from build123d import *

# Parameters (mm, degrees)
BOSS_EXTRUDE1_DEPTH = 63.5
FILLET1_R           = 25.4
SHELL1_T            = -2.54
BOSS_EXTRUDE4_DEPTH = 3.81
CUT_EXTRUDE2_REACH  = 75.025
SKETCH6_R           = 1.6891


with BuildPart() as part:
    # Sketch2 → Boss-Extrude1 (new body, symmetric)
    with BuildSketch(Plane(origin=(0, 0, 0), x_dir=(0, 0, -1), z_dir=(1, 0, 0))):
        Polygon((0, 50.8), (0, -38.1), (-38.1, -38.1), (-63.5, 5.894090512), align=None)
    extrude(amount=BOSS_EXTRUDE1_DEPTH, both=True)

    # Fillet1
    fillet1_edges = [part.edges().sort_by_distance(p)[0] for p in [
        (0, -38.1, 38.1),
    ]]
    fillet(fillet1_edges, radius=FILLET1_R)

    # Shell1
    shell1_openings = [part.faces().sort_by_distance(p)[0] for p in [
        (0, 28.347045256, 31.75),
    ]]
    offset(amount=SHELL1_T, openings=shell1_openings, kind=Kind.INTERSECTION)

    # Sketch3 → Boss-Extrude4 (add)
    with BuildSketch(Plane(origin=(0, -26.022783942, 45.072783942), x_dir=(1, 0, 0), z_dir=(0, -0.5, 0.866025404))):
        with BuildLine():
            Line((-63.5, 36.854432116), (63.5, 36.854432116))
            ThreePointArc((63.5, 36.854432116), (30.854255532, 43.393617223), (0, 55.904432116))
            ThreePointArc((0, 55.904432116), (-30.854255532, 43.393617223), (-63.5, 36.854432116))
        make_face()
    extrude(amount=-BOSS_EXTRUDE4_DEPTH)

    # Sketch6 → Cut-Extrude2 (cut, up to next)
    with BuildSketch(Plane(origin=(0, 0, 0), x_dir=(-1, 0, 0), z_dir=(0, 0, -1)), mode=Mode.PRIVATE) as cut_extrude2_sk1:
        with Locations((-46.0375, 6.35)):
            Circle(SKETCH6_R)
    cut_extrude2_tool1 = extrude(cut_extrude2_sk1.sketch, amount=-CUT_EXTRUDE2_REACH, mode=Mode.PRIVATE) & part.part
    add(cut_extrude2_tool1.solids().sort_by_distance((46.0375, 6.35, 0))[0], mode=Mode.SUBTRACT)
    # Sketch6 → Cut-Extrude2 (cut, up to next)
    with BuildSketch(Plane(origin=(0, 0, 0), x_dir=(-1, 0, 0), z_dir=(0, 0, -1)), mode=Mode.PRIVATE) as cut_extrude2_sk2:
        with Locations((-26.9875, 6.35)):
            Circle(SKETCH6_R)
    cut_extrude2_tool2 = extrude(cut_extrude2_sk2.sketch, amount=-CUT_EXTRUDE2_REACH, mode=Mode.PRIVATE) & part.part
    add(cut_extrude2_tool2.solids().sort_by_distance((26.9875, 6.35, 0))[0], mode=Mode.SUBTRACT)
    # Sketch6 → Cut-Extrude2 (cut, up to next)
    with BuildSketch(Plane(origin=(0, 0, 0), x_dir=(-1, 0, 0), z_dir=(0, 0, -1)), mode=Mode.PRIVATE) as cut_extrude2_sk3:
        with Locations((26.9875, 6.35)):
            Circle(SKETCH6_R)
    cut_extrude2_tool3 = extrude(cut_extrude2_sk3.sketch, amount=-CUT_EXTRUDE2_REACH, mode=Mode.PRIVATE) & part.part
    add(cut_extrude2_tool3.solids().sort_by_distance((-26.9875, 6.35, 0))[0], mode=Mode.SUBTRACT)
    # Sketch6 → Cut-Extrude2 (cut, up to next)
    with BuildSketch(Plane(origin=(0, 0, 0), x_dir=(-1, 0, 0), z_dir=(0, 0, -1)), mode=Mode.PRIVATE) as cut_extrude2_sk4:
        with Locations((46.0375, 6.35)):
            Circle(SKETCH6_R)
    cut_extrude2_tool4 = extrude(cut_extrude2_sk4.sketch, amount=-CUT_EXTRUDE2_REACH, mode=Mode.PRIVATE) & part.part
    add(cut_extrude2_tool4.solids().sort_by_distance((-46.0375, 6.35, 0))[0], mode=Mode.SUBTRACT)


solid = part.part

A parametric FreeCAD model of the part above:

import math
import FreeCAD as App
import Part
import Sketcher
from FreeCAD import Vector
Q = App.Units.Quantity


def edges_at(feature, points):
    """Names of the edges that pass closest to the given points."""
    edges = feature.Shape.Edges
    near = lambda p: min(range(len(edges)), key=lambda i: edges[i].distToShape(Part.Vertex(*p))[0])
    return sorted({f"Edge{near(p) + 1}" for p in points})


def faces_at(feature, points):
    """Names of the faces that lie closest to the given points."""
    faces = feature.Shape.Faces
    near = lambda p: min(range(len(faces)), key=lambda i: faces[i].distToShape(Part.Vertex(*p))[0])
    return sorted({f"Face{near(p) + 1}" for p in points})

doc = App.newDocument("Part")
body = doc.addObject("PartDesign::Body", "Body")

# Sketch on YZ plane
sketch1 = body.newObject("Sketcher::SketchObject", "Sketch")
sketch1.AttachmentSupport = (doc.getObject("YZ_Plane"), [""])
sketch1.MapMode = "FlatFace"
sketch1.addGeometry([
    Part.LineSegment(Vector(-38.1, 0, 0), Vector(50.8, 0, 0)),
    Part.LineSegment(Vector(50.8, 0, 0), Vector(5.894091, 63.5, 0)),
    Part.LineSegment(Vector(5.894091, 63.5, 0), Vector(-38.1, 38.1, 0)),
    Part.LineSegment(Vector(-38.1, 38.1, 0), Vector(-38.1, 0, 0)),
], False)
sketch1.addConstraint([
    Sketcher.Constraint("Coincident", 0, 2, 1, 1),
    Sketcher.Constraint("Coincident", 1, 2, 2, 1),
    Sketcher.Constraint("Coincident", 2, 2, 3, 1),
    Sketcher.Constraint("Coincident", 3, 2, 0, 1),
    Sketcher.Constraint("Horizontal", 0),
    Sketcher.Constraint("Vertical", 3),
    Sketcher.Constraint("PointOnObject", 0, 2, -1),
    Sketcher.Constraint("Distance", 2, Q("2 in")),
    Sketcher.Constraint("DistanceX", 0, 1, 0, 2, Q("3.5 in")),
    Sketcher.Constraint("DistanceY", 3, 2, 3, 1, Q("1.5 in")),
    Sketcher.Constraint("DistanceX", -1, 1, 0, 2, Q("2 in")),
    Sketcher.Constraint("Angle", 2, Q("-150 deg")),
])
pad1 = body.newObject("PartDesign::Pad", "Pad")
pad1.Profile = sketch1
pad1.Length = Q("5 in")
pad1.Midplane = True
doc.recompute()

fillet = body.newObject("PartDesign::Fillet", "Fillet")
fillet.Base = (pad1, edges_at(pad1, [(0, -38.1, 38.1)]))
fillet.Radius = Q("1 in")
doc.recompute()

thickness = body.newObject("PartDesign::Thickness", "Thickness")
thickness.Base = (fillet, faces_at(fillet, [(0, 28.347, 31.75)]))
thickness.Value = Q("0.1 in")
thickness.Reversed = True
thickness.Join = "Intersection"

# Sketch on an angled plane
sketch2 = body.newObject("Sketcher::SketchObject", "Sketch001")
sketch2.Placement = App.Placement(Vector(0, -26.022784, 45.072784), App.Rotation(Vector(1, 0, 0), Vector(0, 0.866025404, 0.5), Vector(0, -0.5, 0.866025404), "ZXY"))
sketch2.addGeometry([
    Part.LineSegment(Vector(-63.5, 36.854432, 0), Vector(63.5, 36.854432, 0)),
    Part.ArcOfCircle(Part.Circle(Vector(81.94471, 213.695131, 0), Vector(0, 0, 1), 177.8), math.radians(-117.443996), math.radians(-95.954492)),
    Part.ArcOfCircle(Part.Circle(Vector(-81.94471, 213.695131, 0), Vector(0, 0, 1), 177.8), math.radians(-84.045508), math.radians(-62.556004)),
], False)
sketch2.addConstraint([
    Sketcher.Constraint("Coincident", 0, 2, 1, 2),
    Sketcher.Constraint("Coincident", 1, 1, 2, 2),
    Sketcher.Constraint("Coincident", 2, 1, 0, 1),
    Sketcher.Constraint("Horizontal", 0),
    Sketcher.Constraint("Equal", 1, 2),
    Sketcher.Constraint("Symmetric", 1, 3, 2, 3, -2),
    Sketcher.Constraint("Radius", 1, Q("7 in")),
    Sketcher.Constraint("DistanceX", 0, 1, 0, 2, Q("5 in")),
    Sketcher.Constraint("DistanceY", 0, 2, 1, 1, Q("0.75 in")),
    Sketcher.Constraint("DistanceY", -1, 1, 1, 3, Q("213.695131 mm")),
])
pad2 = body.newObject("PartDesign::Pad", "Pad001")
pad2.Profile = sketch2
pad2.Length = Q("0.15 in")
pad2.Reversed = True

# Sketch on XY plane
sketch3 = body.newObject("Sketcher::SketchObject", "Sketch002")
sketch3.AttachmentSupport = (doc.getObject("XY_Plane"), [""])
sketch3.MapMode = "FlatFace"
sketch3.addGeometry(Part.Circle(Vector(46.0375, 6.35, 0), Vector(0, 0, 1), 1.6891), False)
sketch3.addConstraint([
    Sketcher.Constraint("Diameter", 0, Q("0.133 in")),
    Sketcher.Constraint("DistanceY", -1, 1, 0, 3, Q("0.25 in")),
    Sketcher.Constraint("DistanceX", -1, 1, 0, 3, Q("1.8125 in")),
])
pocket1 = body.newObject("PartDesign::Pocket", "Pocket")
pocket1.Profile = sketch3
pocket1.Type = "UpToFirst"
pocket1.Reversed = True

# Sketch on XY plane
sketch4 = body.newObject("Sketcher::SketchObject", "Sketch003")
sketch4.AttachmentSupport = (doc.getObject("XY_Plane"), [""])
sketch4.MapMode = "FlatFace"
sketch4.addGeometry(Part.Circle(Vector(26.9875, 6.35, 0), Vector(0, 0, 1), 1.6891), False)
sketch4.addConstraint([
    Sketcher.Constraint("Diameter", 0, Q("0.133 in")),
    Sketcher.Constraint("DistanceY", -1, 1, 0, 3, Q("0.25 in")),
    Sketcher.Constraint("DistanceX", -1, 1, 0, 3, Q("1.0625 in")),
])
pocket2 = body.newObject("PartDesign::Pocket", "Pocket001")
pocket2.Profile = sketch4
pocket2.Type = "UpToFirst"
pocket2.Reversed = True

# Sketch on XY plane
sketch5 = body.newObject("Sketcher::SketchObject", "Sketch004")
sketch5.AttachmentSupport = (doc.getObject("XY_Plane"), [""])
sketch5.MapMode = "FlatFace"
sketch5.addGeometry(Part.Circle(Vector(-26.9875, 6.35, 0), Vector(0, 0, 1), 1.6891), False)
sketch5.addConstraint([
    Sketcher.Constraint("Diameter", 0, Q("0.133 in")),
    Sketcher.Constraint("DistanceY", -1, 1, 0, 3, Q("0.25 in")),
    Sketcher.Constraint("DistanceX", 0, 3, -1, 1, Q("1.0625 in")),
])
pocket3 = body.newObject("PartDesign::Pocket", "Pocket002")
pocket3.Profile = sketch5
pocket3.Type = "UpToFirst"
pocket3.Reversed = True

# Sketch on XY plane
sketch6 = body.newObject("Sketcher::SketchObject", "Sketch005")
sketch6.AttachmentSupport = (doc.getObject("XY_Plane"), [""])
sketch6.MapMode = "FlatFace"
sketch6.addGeometry(Part.Circle(Vector(-46.0375, 6.35, 0), Vector(0, 0, 1), 1.6891), False)
sketch6.addConstraint([
    Sketcher.Constraint("Diameter", 0, Q("0.133 in")),
    Sketcher.Constraint("DistanceY", -1, 1, 0, 3, Q("0.25 in")),
    Sketcher.Constraint("DistanceX", 0, 3, -1, 1, Q("1.8125 in")),
])
pocket4 = body.newObject("PartDesign::Pocket", "Pocket003")
pocket4.Profile = sketch6
pocket4.Type = "UpToFirst"
pocket4.Reversed = True

doc.recompute()
